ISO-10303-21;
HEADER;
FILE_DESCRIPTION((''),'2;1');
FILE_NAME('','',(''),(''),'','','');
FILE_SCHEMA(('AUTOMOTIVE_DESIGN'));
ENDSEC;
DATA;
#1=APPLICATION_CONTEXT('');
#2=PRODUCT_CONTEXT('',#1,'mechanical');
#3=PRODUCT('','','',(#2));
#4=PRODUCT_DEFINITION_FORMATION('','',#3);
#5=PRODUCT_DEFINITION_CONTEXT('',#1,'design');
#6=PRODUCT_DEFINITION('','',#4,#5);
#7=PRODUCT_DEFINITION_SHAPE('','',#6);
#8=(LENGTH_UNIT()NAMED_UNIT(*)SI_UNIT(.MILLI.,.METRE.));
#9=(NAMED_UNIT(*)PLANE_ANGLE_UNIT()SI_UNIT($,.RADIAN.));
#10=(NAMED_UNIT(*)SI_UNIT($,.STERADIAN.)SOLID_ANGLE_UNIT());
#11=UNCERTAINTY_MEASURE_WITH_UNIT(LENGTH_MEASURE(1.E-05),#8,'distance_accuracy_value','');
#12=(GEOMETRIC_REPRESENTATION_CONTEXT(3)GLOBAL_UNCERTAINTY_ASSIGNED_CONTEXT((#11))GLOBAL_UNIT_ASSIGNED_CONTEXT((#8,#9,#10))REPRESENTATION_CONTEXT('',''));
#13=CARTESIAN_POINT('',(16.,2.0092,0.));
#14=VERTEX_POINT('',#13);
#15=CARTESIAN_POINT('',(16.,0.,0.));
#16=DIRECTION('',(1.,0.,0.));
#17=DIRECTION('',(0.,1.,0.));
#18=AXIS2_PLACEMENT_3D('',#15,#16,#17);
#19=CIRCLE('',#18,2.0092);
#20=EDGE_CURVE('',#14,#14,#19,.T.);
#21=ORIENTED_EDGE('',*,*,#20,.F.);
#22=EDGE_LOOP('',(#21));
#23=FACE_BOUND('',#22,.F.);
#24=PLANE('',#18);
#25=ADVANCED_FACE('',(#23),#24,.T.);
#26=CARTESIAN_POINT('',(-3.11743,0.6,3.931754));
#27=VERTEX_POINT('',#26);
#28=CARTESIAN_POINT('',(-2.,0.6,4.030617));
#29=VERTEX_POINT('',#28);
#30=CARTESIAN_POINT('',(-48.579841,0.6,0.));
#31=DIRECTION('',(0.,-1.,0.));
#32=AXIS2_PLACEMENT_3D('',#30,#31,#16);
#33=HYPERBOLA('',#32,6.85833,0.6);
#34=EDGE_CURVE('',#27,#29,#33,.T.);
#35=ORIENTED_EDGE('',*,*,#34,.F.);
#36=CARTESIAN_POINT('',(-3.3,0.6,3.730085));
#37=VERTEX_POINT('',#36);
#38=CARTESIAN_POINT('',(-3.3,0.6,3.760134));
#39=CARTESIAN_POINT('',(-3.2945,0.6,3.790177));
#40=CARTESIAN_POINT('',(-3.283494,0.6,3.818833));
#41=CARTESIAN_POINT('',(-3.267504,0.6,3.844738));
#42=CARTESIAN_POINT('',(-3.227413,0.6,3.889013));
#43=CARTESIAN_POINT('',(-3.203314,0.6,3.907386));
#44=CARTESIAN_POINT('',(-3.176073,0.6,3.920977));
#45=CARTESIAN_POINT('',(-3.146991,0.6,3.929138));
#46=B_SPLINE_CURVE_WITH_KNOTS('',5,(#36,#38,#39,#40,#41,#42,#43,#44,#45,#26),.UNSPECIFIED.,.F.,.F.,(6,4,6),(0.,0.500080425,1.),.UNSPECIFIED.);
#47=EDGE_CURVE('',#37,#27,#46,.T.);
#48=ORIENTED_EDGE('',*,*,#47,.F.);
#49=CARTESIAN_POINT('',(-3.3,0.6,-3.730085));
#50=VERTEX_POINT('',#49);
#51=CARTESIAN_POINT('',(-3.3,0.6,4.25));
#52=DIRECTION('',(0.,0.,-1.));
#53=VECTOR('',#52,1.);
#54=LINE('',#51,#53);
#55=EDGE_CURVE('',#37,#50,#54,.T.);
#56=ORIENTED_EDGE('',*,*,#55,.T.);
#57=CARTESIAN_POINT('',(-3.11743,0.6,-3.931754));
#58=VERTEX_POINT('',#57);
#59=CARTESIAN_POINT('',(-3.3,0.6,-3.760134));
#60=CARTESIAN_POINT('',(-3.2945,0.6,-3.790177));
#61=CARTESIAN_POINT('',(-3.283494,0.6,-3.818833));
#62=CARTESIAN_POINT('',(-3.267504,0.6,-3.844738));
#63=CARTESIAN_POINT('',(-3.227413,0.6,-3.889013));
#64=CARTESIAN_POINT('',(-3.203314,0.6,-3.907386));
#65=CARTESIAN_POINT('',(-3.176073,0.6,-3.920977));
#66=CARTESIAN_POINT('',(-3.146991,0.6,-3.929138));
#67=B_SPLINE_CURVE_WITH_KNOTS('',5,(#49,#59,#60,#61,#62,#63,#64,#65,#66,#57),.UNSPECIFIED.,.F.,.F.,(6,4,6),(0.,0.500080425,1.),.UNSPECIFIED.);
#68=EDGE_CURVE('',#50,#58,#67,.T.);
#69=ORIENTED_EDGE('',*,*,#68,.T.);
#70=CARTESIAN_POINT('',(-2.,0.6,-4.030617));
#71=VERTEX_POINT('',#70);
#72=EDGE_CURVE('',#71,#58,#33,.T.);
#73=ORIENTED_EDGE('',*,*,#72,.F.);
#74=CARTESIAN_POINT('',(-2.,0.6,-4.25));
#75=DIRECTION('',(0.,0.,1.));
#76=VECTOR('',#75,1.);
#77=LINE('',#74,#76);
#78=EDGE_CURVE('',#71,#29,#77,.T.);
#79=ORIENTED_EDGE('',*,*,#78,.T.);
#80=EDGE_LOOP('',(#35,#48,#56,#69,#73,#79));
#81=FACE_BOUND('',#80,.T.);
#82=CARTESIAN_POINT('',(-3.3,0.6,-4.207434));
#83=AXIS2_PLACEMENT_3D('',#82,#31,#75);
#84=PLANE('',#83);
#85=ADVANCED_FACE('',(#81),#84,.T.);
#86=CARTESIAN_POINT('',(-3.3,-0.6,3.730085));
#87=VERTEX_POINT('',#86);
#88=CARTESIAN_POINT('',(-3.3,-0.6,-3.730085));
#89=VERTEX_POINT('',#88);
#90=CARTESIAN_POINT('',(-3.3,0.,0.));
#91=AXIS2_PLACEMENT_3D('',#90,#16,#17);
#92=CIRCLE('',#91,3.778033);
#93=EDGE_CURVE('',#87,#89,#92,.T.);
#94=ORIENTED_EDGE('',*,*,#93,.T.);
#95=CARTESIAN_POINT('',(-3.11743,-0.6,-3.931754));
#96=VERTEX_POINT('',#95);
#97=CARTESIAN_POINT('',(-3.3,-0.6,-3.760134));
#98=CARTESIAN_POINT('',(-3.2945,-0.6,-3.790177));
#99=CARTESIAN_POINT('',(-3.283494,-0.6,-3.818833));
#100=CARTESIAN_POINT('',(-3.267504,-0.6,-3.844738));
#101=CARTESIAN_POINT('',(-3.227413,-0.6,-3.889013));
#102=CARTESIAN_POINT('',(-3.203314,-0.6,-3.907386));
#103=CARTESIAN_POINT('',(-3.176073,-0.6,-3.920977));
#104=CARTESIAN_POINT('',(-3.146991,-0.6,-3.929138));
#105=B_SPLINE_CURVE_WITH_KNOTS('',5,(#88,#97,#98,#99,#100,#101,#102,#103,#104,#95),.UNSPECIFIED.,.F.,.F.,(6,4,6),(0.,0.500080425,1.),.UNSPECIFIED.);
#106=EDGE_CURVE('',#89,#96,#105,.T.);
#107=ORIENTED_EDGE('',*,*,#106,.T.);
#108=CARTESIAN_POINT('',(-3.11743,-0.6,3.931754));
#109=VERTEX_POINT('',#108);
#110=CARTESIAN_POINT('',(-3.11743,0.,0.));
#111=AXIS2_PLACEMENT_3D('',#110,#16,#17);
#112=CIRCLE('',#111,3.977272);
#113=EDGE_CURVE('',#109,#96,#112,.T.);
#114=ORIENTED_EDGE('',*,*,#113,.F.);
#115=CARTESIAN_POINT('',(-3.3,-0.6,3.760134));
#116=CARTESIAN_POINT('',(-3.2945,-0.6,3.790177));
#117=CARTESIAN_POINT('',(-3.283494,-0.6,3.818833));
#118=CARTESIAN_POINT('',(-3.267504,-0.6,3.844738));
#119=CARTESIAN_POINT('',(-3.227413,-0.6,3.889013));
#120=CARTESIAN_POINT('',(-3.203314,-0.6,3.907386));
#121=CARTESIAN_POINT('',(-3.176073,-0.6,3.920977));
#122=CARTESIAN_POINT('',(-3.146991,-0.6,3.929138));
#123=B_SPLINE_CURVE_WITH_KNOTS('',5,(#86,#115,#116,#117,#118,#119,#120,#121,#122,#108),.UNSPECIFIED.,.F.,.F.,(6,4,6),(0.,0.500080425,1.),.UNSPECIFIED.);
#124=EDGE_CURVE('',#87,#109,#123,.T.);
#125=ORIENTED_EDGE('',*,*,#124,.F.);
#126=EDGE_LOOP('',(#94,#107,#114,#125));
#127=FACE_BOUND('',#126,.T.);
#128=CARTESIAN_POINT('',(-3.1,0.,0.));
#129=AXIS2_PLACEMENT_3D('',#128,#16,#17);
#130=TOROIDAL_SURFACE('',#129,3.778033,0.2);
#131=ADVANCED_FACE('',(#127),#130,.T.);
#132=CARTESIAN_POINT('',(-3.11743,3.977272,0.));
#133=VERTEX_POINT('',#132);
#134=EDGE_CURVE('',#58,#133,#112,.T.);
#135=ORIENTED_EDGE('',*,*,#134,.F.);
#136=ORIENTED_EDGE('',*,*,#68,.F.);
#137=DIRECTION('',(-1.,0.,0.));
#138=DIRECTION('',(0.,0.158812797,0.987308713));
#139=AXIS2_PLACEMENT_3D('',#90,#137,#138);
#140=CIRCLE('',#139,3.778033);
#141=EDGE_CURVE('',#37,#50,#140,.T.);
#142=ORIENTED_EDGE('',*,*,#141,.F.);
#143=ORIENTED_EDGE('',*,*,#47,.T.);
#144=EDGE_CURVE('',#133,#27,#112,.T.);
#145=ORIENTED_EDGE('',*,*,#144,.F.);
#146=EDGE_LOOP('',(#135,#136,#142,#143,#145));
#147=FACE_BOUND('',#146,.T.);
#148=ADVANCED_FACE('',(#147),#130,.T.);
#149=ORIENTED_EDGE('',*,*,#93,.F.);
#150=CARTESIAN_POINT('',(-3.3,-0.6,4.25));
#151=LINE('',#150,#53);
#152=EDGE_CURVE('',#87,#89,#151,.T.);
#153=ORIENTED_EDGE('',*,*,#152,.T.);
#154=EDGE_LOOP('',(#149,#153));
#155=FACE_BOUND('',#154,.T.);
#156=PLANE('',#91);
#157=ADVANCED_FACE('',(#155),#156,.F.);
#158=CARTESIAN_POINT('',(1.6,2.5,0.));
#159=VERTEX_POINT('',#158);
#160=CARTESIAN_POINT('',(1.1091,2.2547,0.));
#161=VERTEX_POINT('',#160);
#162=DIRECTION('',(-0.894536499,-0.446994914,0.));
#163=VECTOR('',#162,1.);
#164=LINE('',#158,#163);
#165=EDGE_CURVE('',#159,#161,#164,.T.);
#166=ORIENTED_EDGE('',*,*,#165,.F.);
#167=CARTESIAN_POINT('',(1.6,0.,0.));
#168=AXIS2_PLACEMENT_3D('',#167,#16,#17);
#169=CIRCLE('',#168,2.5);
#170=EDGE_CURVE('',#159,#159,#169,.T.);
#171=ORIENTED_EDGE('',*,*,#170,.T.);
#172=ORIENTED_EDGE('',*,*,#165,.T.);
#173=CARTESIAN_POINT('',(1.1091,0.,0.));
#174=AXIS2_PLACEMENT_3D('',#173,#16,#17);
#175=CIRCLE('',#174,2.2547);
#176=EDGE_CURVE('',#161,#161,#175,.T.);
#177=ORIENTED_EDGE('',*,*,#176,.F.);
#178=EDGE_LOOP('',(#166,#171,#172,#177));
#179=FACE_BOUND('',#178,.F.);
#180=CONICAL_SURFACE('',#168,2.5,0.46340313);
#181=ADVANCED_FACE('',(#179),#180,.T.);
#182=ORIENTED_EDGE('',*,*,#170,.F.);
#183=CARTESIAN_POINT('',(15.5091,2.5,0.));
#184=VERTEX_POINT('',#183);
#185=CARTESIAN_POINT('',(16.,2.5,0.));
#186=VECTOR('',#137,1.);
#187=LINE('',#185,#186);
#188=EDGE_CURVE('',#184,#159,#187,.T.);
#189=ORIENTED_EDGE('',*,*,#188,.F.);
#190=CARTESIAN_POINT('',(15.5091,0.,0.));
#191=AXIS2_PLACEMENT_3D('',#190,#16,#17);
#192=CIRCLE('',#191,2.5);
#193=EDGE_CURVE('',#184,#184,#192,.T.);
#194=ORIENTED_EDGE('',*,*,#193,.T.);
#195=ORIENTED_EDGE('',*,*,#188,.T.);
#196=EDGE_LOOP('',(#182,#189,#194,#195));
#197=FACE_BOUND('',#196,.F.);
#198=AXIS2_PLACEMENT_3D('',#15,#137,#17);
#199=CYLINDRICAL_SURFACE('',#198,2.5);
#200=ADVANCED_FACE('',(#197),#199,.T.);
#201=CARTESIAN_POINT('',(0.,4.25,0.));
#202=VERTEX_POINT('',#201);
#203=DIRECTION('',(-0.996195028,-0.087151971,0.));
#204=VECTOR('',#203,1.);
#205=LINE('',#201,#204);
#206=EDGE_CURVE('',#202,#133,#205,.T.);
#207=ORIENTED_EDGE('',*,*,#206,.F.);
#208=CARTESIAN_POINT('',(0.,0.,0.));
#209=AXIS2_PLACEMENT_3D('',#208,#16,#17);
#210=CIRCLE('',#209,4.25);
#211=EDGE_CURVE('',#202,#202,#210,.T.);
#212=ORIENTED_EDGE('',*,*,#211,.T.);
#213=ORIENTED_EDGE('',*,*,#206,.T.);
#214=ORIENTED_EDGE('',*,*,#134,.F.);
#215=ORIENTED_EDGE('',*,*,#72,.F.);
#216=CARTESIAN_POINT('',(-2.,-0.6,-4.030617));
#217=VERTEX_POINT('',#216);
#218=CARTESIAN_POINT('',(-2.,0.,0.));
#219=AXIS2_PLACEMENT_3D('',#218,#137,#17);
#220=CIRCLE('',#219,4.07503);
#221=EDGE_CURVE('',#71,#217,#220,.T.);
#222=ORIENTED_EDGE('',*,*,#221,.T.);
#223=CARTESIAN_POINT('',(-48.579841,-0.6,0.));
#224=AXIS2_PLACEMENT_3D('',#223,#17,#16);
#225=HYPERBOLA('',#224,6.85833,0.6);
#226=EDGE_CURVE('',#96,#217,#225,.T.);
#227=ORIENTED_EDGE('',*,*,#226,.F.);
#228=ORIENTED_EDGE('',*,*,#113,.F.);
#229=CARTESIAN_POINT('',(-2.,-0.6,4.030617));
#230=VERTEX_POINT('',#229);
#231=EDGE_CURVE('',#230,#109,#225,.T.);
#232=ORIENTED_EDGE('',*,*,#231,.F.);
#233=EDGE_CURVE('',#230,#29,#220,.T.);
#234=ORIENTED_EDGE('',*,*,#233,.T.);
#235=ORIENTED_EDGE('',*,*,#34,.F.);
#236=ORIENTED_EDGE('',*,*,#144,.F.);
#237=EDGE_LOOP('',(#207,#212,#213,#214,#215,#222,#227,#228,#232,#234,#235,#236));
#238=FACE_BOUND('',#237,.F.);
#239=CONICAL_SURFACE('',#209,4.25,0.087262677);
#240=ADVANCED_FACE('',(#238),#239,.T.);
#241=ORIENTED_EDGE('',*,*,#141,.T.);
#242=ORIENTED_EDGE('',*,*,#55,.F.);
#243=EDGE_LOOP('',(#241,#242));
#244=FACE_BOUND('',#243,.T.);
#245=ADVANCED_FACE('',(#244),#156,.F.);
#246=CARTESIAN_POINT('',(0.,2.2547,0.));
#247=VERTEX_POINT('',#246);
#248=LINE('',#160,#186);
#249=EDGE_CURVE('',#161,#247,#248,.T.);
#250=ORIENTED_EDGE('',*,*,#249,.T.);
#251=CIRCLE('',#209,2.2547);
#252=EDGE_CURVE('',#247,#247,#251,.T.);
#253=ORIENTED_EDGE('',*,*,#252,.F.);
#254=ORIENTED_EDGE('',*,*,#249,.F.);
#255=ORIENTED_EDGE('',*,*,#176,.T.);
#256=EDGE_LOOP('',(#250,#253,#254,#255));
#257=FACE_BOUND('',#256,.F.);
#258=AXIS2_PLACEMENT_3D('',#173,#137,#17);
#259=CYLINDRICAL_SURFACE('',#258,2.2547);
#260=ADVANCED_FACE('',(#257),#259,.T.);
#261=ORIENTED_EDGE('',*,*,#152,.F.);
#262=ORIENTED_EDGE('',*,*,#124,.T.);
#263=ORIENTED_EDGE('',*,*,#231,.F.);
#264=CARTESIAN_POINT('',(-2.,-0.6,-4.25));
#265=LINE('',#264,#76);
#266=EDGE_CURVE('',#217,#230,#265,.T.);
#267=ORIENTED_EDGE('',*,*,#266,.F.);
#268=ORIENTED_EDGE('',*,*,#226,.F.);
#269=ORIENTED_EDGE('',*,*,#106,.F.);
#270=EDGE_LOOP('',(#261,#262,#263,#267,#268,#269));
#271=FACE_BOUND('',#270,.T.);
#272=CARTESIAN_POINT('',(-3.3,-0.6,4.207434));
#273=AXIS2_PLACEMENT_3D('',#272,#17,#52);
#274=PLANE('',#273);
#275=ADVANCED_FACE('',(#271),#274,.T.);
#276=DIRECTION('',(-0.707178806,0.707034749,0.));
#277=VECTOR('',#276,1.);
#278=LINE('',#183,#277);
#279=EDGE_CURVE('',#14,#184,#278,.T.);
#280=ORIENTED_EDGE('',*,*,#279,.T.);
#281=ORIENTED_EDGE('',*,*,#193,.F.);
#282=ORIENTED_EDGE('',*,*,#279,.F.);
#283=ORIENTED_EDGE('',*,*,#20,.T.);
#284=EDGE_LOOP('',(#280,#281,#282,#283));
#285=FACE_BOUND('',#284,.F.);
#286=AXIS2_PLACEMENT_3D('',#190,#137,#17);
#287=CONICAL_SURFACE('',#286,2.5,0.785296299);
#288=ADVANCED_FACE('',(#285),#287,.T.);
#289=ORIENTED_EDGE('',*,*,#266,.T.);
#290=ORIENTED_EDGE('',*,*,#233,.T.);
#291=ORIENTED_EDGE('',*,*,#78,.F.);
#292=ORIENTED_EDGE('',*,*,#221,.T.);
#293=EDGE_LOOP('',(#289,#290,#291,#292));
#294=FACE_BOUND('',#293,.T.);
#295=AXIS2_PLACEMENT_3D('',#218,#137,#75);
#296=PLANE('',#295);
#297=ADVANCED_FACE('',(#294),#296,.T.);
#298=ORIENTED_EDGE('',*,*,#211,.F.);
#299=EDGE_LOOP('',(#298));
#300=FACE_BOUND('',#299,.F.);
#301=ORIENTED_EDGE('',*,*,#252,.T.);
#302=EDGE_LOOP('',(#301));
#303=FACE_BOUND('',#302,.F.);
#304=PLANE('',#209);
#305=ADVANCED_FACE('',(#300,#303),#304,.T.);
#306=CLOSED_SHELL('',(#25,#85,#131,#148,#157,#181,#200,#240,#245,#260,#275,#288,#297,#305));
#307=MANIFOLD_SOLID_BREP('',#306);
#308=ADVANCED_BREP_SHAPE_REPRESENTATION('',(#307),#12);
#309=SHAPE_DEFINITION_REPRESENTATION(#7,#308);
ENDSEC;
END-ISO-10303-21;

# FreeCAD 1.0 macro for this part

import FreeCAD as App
import Part
import Sketcher
Q = App.Units.Quantity


def edges_at(feature, points):
    """Names of the edges that pass closest to the given points."""
    edges = feature.Shape.Edges
    near = lambda p: min(range(len(edges)), key=lambda i: edges[i].distToShape(Part.Vertex(*p))[0])
    return sorted({f"Edge{near(p) + 1}" for p in points})


def add_polygon(sketch, points):
    """Adds a closed chain of lines whose ends are joined by coincident constraints."""
    first, n = sketch.GeometryCount, len(points)
    for a, b in zip(points, points[1:] + points[:1]):
        sketch.addGeometry(Part.LineSegment(App.Vector(*a, 0), App.Vector(*b, 0)), False)
    for i in range(n):
        sketch.addConstraint(Sketcher.Constraint("Coincident", first + i, 2, first + (i + 1) % n, 1))

doc = App.newDocument("Part")
body = doc.addObject("PartDesign::Body", "Body")

# Sketch on XY plane
sketch1 = doc.addObject("Sketcher::SketchObject", "Sketch")
body.addObject(sketch1)
sketch1.AttachmentSupport = (doc.XY_Plane, [""])
sketch1.MapMode = "FlatFace"
add_polygon(sketch1, [(-3.3, 3.9613), (-3.3, 0), (16, 0), (16, 2.5), (1.6, 2.5), (1.1091, 2.2547), (0, 2.2547), (0, 4.25)])  # lines 0-7
sketch1.addConstraint(Sketcher.Constraint("Vertical", 0))
sketch1.addConstraint(Sketcher.Constraint("Horizontal", 1))
sketch1.addConstraint(Sketcher.Constraint("Vertical", 2))
sketch1.addConstraint(Sketcher.Constraint("Horizontal", 3))
sketch1.addConstraint(Sketcher.Constraint("Horizontal", 5))
sketch1.addConstraint(Sketcher.Constraint("Vertical", 6))
sketch1.addConstraint(Sketcher.Constraint("PointOnObject", 0, 2, -1))
sketch1.addConstraint(Sketcher.Constraint("PointOnObject", 5, 2, -2))
sketch1.addConstraint(Sketcher.Constraint("DistanceX", 3, 2, 3, 1, 14.4))
sketch1.addConstraint(Sketcher.Constraint("DistanceX", -1, 1, 1, 2, 16.0))
sketch1.addConstraint(Sketcher.Constraint("DistanceX", 0, 2, -1, 1, 3.3))
sketch1.addConstraint(Sketcher.Constraint("Angle", 7, Q("-175.0002 deg")))
sketch1.addConstraint(Sketcher.Constraint("DistanceY", 2, 1, 2, 2, 2.5))
sketch1.addConstraint(Sketcher.Constraint("DistanceX", 4, 2, 3, 2, 0.491))
sketch1.addConstraint(Sketcher.Constraint("Angle", 4, Q("-153.449 deg")))
sketch1.addConstraint(Sketcher.Constraint("DistanceY", -1, 1, 6, 2, 4.25))
revolution = doc.addObject("PartDesign::Revolution", "Revolution")
body.addObject(revolution)
revolution.Profile = sketch1
revolution.ReferenceAxis = (sketch1, ["H_Axis"])
revolution.Angle = 360
doc.recompute()

fillet = doc.addObject("PartDesign::Fillet", "Fillet")
body.addObject(fillet)
fillet.Base = (revolution, edges_at(revolution, [(-3.3, -3.961, 0)]))
fillet.Radius = 0.2

# Sketch on YZ plane
sketch2 = doc.addObject("Sketcher::SketchObject", "Sketch001")
body.addObject(sketch2)
sketch2.AttachmentSupport = (doc.YZ_Plane, [""])
sketch2.MapMode = "FlatFace"
sketch2.AttachmentOffset = App.Placement(App.Vector(0, 0, -3.3), App.Rotation())
add_polygon(sketch2, [(-0.6, 4.25), (0.6, 4.25), (0.6, -4.25), (-0.6, -4.25)])  # lines 0-3
sketch2.addConstraint(Sketcher.Constraint("Horizontal", 0))
sketch2.addConstraint(Sketcher.Constraint("Vertical", 1))
sketch2.addConstraint(Sketcher.Constraint("Horizontal", 2))
sketch2.addConstraint(Sketcher.Constraint("Vertical", 3))
sketch2.addConstraint(Sketcher.Constraint("Symmetric", 0, 2, 2, 2, -1, 1))
sketch2.addConstraint(Sketcher.Constraint("DistanceX", 0, 1, 0, 2, 1.2))
sketch2.addConstraint(Sketcher.Constraint("DistanceY", 1, 2, 1, 1, 8.5))
pocket1 = doc.addObject("PartDesign::Pocket", "Pocket")
body.addObject(pocket1)
pocket1.Profile = sketch2
pocket1.Length = 1.3
pocket1.Reversed = True
doc.recompute()

chamfer = doc.addObject("PartDesign::Chamfer", "Chamfer")
body.addObject(chamfer)
chamfer.Base = (pocket1, edges_at(pocket1, [(16, -2.5, 0)]))
chamfer.ChamferType = "Two distances"
chamfer.Size = 0.4908
chamfer.Size2 = 0.4909

doc.recompute()
